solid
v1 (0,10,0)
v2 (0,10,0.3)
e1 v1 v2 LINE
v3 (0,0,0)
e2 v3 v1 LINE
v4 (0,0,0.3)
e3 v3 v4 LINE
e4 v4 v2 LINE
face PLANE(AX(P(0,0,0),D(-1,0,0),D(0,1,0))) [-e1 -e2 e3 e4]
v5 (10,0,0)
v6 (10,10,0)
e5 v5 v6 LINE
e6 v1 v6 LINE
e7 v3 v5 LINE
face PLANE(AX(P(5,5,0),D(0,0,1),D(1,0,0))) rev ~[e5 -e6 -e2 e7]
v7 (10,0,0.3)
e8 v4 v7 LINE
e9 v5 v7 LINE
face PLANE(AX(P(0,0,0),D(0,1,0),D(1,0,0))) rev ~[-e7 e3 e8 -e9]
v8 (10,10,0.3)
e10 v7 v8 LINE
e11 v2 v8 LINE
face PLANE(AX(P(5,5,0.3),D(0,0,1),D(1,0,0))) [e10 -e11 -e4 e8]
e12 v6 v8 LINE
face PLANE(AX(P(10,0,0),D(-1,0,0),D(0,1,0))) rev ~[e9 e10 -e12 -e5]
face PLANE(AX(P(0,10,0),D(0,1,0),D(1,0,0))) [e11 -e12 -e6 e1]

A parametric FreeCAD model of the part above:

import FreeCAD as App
import Part
import Sketcher
from FreeCAD import Vector
Q = App.Units.Quantity

doc = App.newDocument("Part")
body = doc.addObject("PartDesign::Body", "Body")

# Sketch on XY plane
sketch1 = body.newObject("Sketcher::SketchObject", "Sketch")
sketch1.AttachmentSupport = (doc.getObject("XY_Plane"), [""])
sketch1.MapMode = "FlatFace"
sketch1.addGeometry(Part.LineSegment(Vector(0, 10, 0), Vector(0, 0, 0)), False)
sketch1.addGeometry(Part.LineSegment(Vector(0, 0, 0), Vector(10, 0, 0)), False)
sketch1.addGeometry(Part.LineSegment(Vector(10, 0, 0), Vector(10, 10, 0)), False)
sketch1.addGeometry(Part.LineSegment(Vector(10, 10, 0), Vector(0, 10, 0)), False)
sketch1.addConstraint(Sketcher.Constraint("Coincident", 0, 2, 1, 1))
sketch1.addConstraint(Sketcher.Constraint("Coincident", 1, 2, 2, 1))
sketch1.addConstraint(Sketcher.Constraint("Coincident", 2, 2, 3, 1))
sketch1.addConstraint(Sketcher.Constraint("Coincident", 3, 2, 0, 1))
sketch1.addConstraint(Sketcher.Constraint("Vertical", 0))
sketch1.addConstraint(Sketcher.Constraint("Horizontal", 1))
sketch1.addConstraint(Sketcher.Constraint("Vertical", 2))
sketch1.addConstraint(Sketcher.Constraint("Horizontal", 3))
sketch1.addConstraint(Sketcher.Constraint("Coincident", 0, 2, -1, 1))
sketch1.addConstraint(Sketcher.Constraint("Equal", 3, 0))
sketch1.addConstraint(Sketcher.Constraint("DistanceX", 1, 1, 1, 2, Q("10 mm")))
pad1 = body.newObject("PartDesign::Pad", "Pad")
pad1.Profile = sketch1
pad1.Length = 0.3

doc.recompute()
